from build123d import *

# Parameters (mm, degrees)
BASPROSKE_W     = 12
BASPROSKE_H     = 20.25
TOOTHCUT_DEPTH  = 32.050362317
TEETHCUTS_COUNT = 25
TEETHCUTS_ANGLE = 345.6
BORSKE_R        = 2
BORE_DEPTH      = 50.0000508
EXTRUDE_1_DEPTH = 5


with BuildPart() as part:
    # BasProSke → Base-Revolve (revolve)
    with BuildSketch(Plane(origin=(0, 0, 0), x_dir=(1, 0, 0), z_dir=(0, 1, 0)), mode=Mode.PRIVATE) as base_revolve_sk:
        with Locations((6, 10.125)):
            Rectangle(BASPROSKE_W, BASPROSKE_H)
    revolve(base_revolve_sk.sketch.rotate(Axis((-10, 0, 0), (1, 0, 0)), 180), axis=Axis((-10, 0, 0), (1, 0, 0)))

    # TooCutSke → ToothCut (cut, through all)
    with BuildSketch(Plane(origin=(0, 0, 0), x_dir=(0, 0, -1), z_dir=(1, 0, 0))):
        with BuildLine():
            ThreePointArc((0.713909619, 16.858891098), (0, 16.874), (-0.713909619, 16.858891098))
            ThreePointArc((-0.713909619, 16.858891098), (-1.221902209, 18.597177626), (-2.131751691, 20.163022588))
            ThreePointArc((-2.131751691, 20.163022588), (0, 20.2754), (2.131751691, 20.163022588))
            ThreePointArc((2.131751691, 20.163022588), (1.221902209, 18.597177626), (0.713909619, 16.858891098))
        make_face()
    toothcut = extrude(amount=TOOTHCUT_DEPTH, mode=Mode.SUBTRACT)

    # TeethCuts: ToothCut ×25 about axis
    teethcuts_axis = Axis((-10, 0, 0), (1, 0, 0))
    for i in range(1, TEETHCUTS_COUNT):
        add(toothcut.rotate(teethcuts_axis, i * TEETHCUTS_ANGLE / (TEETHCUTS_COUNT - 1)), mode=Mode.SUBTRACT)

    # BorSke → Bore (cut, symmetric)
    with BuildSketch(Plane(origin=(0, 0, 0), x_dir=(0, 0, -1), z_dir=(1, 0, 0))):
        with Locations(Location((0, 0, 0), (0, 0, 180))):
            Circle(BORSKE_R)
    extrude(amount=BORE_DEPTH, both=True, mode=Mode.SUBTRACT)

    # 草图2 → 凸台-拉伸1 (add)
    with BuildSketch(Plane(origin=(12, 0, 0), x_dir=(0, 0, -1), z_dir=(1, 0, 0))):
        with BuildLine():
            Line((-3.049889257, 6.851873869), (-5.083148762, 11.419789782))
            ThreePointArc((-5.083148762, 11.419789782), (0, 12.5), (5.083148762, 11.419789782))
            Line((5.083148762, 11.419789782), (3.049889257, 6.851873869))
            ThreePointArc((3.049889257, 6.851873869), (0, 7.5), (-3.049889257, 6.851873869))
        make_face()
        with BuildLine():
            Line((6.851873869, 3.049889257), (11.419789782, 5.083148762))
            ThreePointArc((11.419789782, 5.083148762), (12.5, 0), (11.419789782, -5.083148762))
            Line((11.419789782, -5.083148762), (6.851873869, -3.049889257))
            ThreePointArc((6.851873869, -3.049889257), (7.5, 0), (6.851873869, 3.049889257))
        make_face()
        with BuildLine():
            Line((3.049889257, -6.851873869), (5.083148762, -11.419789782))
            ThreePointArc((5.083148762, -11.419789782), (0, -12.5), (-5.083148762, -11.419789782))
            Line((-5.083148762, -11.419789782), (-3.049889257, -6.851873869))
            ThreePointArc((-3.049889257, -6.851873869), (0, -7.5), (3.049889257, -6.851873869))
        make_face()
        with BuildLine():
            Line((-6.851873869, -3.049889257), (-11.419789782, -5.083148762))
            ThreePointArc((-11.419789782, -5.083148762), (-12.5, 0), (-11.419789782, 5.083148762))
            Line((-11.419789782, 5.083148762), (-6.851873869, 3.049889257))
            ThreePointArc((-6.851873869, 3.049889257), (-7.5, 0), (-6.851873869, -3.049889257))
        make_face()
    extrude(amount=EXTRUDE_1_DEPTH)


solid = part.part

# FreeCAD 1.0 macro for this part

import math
import FreeCAD as App
import Part
import Sketcher

V = App.Vector
Q = App.Units.Quantity

doc = App.newDocument("Part")
params = doc.addObject("Spreadsheet::Sheet", "Params")
for row, (alias, value) in enumerate([
    ("sketch1_width", "12 mm"),
    ("sketch1_height", "20.25 mm"),
    ("revolution_angle", "360 deg"),
    ("sketch2_radius", "7.5 mm"),
    ("sketch3_diameter", "4 mm"),
    ("pocket2_length", "100.000102 mm"),
    ("sketch4_radius", "7.5 mm"),
    ("sketch4_radius2", "12.5 mm"),
    ("pad1_length", "5 mm"),
], start=1):
    params.set(f"A{row}", alias)
    params.set(f"B{row}", "=" + value)
    params.setAlias(f"B{row}", alias)

body = doc.addObject("PartDesign::Body", "Body")

# Sketch on XZ plane
sketch1 = body.newObject("Sketcher::SketchObject", "Sketch")
sketch1.AttachmentSupport = (doc.getObject("XZ_Plane"), [""])
sketch1.MapMode = "FlatFace"
sketch1.addGeometry([
    Part.LineSegment(V(0, -20, 0), V(0, 0, 0)),
    Part.LineSegment(V(0, 0, 0), V(12, 0, 0)),
    Part.LineSegment(V(12, 0, 0), V(12, -20, 0)),
    Part.LineSegment(V(12, -20, 0), V(0, -20, 0)),
], False)
sketch1.addConstraint([
    Sketcher.Constraint("Coincident", 0, 2, 1, 1),
    Sketcher.Constraint("Coincident", 1, 2, 2, 1),
    Sketcher.Constraint("Coincident", 2, 2, 3, 1),
    Sketcher.Constraint("Coincident", 3, 2, 0, 1),
    Sketcher.Constraint("Vertical", 0),
    Sketcher.Constraint("Horizontal", 1),
    Sketcher.Constraint("Vertical", 2),
    Sketcher.Constraint("Horizontal", 3),
    Sketcher.Constraint("Coincident", 0, 2, -1, 1),
    Sketcher.Constraint("DistanceX", 1, 1, 1, 2, Q("12 mm")),
    Sketcher.Constraint("DistanceY", 0, 1, 0, 2, Q("20.25 mm")),
])
sketch1.setExpression("Constraints[9]", "Params.sketch1_width")
sketch1.setExpression("Constraints[10]", "Params.sketch1_height")
revolution = body.newObject("PartDesign::Revolution", "Revolution")
revolution.Profile = sketch1
revolution.ReferenceAxis = (sketch1, ["H_Axis"])
revolution.setExpression("Angle", "Params.revolution_angle")

# Sketch on YZ plane
sketch2 = body.newObject("Sketcher::SketchObject", "Sketch001")
sketch2.AttachmentSupport = (doc.getObject("YZ_Plane"), [""])
sketch2.MapMode = "FlatFace"
sketch2.addGeometry([
    Part.ArcOfCircle(Part.Circle(V(0, 0, 0), V(0, 0, 1), 16.9), math.radians(-2.42), math.radians(2.42)),
    Part.ArcOfCircle(Part.Circle(V(15.6, -8.1, 0), V(0, 0, 1), 7.5), math.radians(53), math.radians(81)),
    Part.ArcOfCircle(Part.Circle(V(0, 0, 0), V(0, 0, 1), 20.3), math.radians(-6.04), math.radians(6.04)),
    Part.ArcOfCircle(Part.Circle(V(15.6, 8.1, 0), V(0, 0, 1), 7.5), math.radians(-81), math.radians(-53)),
], False)
sketch2.addConstraint([
    Sketcher.Constraint("Coincident", 0, 1, 1, 2),
    Sketcher.Constraint("Coincident", 1, 1, 2, 1),
    Sketcher.Constraint("Coincident", 2, 2, 3, 2),
    Sketcher.Constraint("Coincident", 3, 1, 0, 2),
    Sketcher.Constraint("Coincident", 0, 3, -1, 1),
    Sketcher.Constraint("Coincident", 2, 3, -1, 1),
    Sketcher.Constraint("Equal", 1, 3),
    Sketcher.Constraint("Symmetric", 1, 3, 3, 3, -1),
    Sketcher.Constraint("Radius", 1, Q("7.5 mm")),
    Sketcher.Constraint("Radius", 0, Q("16.874 mm")),
    Sketcher.Constraint("Radius", 2, Q("20.2754 mm")),
    Sketcher.Constraint("DistanceY", 1, 3, -1, 1, Q("8.114141 mm")),
    Sketcher.Constraint("DistanceX", -1, 1, 0, 1, Q("16.858891 mm")),
])
sketch2.setExpression("Constraints[8]", "Params.sketch2_radius")
pocket1 = body.newObject("PartDesign::Pocket", "Pocket")
pocket1.Profile = sketch2
pocket1.Type = "ThroughAll"
pocket1.Reversed = True
doc.recompute()

polarpattern = body.newObject("PartDesign::PolarPattern", "PolarPattern")
polarpattern.Originals = [pocket1]
polarpattern.Axis = (doc.getObject("X_Axis"), [""])
polarpattern.Angle = 360
polarpattern.Occurrences = 25
body.Tip = polarpattern

# Sketch on YZ plane
sketch3 = body.newObject("Sketcher::SketchObject", "Sketch002")
sketch3.AttachmentSupport = (doc.getObject("YZ_Plane"), [""])
sketch3.MapMode = "FlatFace"
sketch3.addGeometry(Part.Circle(V(0, 0, 0), V(0, 0, 1), 2), False)
sketch3.addConstraint([
    Sketcher.Constraint("Coincident", 0, 3, -1, 1),
    Sketcher.Constraint("Diameter", 0, Q("4 mm")),
])
sketch3.setExpression("Constraints[1]", "Params.sketch3_diameter")
pocket2 = body.newObject("PartDesign::Pocket", "Pocket001")
pocket2.Profile = sketch3
pocket2.setExpression("Length", "Params.pocket2_length")
pocket2.Midplane = True

# Sketch on YZ plane
sketch4 = body.newObject("Sketcher::SketchObject", "Sketch003")
sketch4.AttachmentSupport = (doc.getObject("YZ_Plane"), [""])
sketch4.MapMode = "FlatFace"
sketch4.AttachmentOffset = App.Placement(V(0, 0, 12), App.Rotation())
sketch4.addGeometry([
    Part.LineSegment(V(11, 5, 0), V(7, 3, 0)),  # 0
    Part.ArcOfCircle(Part.Circle(V(0, 0, 0), V(0, 0, 1), 7), math.radians(-24), math.radians(24)),  # 1
    Part.LineSegment(V(7, -3, 0), V(11, -5, 0)),  # 2
    Part.ArcOfCircle(Part.Circle(V(0, 0, 0), V(0, 0, 1), 13), math.radians(-24), math.radians(24)),  # 3
    Part.LineSegment(V(5, -11, 0), V(3, -7, 0)),  # 4
    Part.ArcOfCircle(Part.Circle(V(0, 0, 0), V(0, 0, 1), 7), math.radians(-114), math.radians(-66)),  # 5
    Part.LineSegment(V(-3, -7, 0), V(-5, -11, 0)),  # 6
    Part.ArcOfCircle(Part.Circle(V(0, 0, 0), V(0, 0, 1), 13), math.radians(-114), math.radians(-66)),  # 7
    Part.LineSegment(V(-11, -5, 0), V(-7, -3, 0)),  # 8
    Part.ArcOfCircle(Part.Circle(V(0, 0, 0), V(0, 0, 1), 7), math.radians(156), math.radians(204)),  # 9
    Part.LineSegment(V(-7, 3, 0), V(-11, 5, 0)),  # 10
    Part.ArcOfCircle(Part.Circle(V(0, 0, 0), V(0, 0, 1), 13), math.radians(156), math.radians(204)),  # 11
    Part.LineSegment(V(-5, 11, 0), V(-3, 7, 0)),  # 12
    Part.ArcOfCircle(Part.Circle(V(0, 0, 0), V(0, 0, 1), 7), math.radians(66), math.radians(114)),  # 13
    Part.LineSegment(V(3, 7, 0), V(5, 11, 0)),  # 14
    Part.ArcOfCircle(Part.Circle(V(0, 0, 0), V(0, 0, 1), 13), math.radians(66), math.radians(114)),  # 15
], False)
sketch4.addConstraint([
    Sketcher.Constraint("Coincident", 0, 2, 1, 2),
    Sketcher.Constraint("Coincident", 1, 1, 2, 1),
    Sketcher.Constraint("Coincident", 2, 2, 3, 1),
    Sketcher.Constraint("Coincident", 3, 2, 0, 1),
    Sketcher.Constraint("Coincident", 4, 2, 5, 2),
    Sketcher.Constraint("Coincident", 5, 1, 6, 1),
    Sketcher.Constraint("Coincident", 6, 2, 7, 1),
    Sketcher.Constraint("Coincident", 7, 2, 4, 1),
    Sketcher.Constraint("Coincident", 8, 2, 9, 2),
    Sketcher.Constraint("Coincident", 9, 1, 10, 1),
    Sketcher.Constraint("Coincident", 10, 2, 11, 1),
    Sketcher.Constraint("Coincident", 11, 2, 8, 1),
    Sketcher.Constraint("Coincident", 12, 2, 13, 2),
    Sketcher.Constraint("Coincident", 13, 1, 14, 1),
    Sketcher.Constraint("Coincident", 14, 2, 15, 1),
    Sketcher.Constraint("Coincident", 15, 2, 12, 1),
    Sketcher.Constraint("Coincident", 1, 3, -1, 1),
    Sketcher.Constraint("Coincident", 3, 3, -1, 1),
    Sketcher.Constraint("Coincident", 5, 3, -1, 1),
    Sketcher.Constraint("Coincident", 7, 3, -1, 1),
    Sketcher.Constraint("Coincident", 9, 3, -1, 1),
    Sketcher.Constraint("Coincident", 11, 3, -1, 1),
    Sketcher.Constraint("Coincident", 13, 3, -1, 1),
    Sketcher.Constraint("Coincident", 15, 3, -1, 1),
    Sketcher.Constraint("Equal", 1, 5),
    Sketcher.Constraint("Equal", 3, 7),
    Sketcher.Constraint("Equal", 5, 9),
    Sketcher.Constraint("Equal", 7, 11),
    Sketcher.Constraint("Equal", 9, 13),
    Sketcher.Constraint("Equal", 11, 15),
    Sketcher.Constraint("Perpendicular", 0, 4),
    Sketcher.Constraint("Perpendicular", 2, 6),
    Sketcher.Constraint("Perpendicular", 4, 8),
    Sketcher.Constraint("Perpendicular", 6, 10),
    Sketcher.Constraint("Perpendicular", 8, 12),
    Sketcher.Constraint("Perpendicular", 10, 14),
    Sketcher.Constraint("Horizontal", 4, 2, 5, 1),
    Sketcher.Constraint("Horizontal", 6, 2, 7, 2),
    Sketcher.Constraint("Horizontal", 1, 1, 8, 2),
    Sketcher.Constraint("Horizontal", 0, 2, 9, 1),
    Sketcher.Constraint("Horizontal", 12, 2, 13, 1),
    Sketcher.Constraint("Vertical", 0, 2, 1, 1),
    Sketcher.Constraint("Vertical", 5, 1, 12, 2),
    Sketcher.Constraint("Radius", 1, Q("7.5 mm")),
    Sketcher.Constraint("Radius", 3, Q("12.5 mm")),
    Sketcher.Constraint("DistanceY", 7, 2, 1, 1, Q("8.369901 mm")),
    Sketcher.Constraint("DistanceX", 11, 2, 5, 1, Q("8.369901 mm")),
    Sketcher.Constraint("DistanceY", -1, 1, 0, 2, Q("3.049889 mm")),
])
sketch4.setExpression("Constraints[43]", "Params.sketch4_radius")
sketch4.setExpression("Constraints[44]", "Params.sketch4_radius2")
pad1 = body.newObject("PartDesign::Pad", "Pad")
pad1.Profile = sketch4
pad1.setExpression("Length", "Params.pad1_length")

doc.recompute()
